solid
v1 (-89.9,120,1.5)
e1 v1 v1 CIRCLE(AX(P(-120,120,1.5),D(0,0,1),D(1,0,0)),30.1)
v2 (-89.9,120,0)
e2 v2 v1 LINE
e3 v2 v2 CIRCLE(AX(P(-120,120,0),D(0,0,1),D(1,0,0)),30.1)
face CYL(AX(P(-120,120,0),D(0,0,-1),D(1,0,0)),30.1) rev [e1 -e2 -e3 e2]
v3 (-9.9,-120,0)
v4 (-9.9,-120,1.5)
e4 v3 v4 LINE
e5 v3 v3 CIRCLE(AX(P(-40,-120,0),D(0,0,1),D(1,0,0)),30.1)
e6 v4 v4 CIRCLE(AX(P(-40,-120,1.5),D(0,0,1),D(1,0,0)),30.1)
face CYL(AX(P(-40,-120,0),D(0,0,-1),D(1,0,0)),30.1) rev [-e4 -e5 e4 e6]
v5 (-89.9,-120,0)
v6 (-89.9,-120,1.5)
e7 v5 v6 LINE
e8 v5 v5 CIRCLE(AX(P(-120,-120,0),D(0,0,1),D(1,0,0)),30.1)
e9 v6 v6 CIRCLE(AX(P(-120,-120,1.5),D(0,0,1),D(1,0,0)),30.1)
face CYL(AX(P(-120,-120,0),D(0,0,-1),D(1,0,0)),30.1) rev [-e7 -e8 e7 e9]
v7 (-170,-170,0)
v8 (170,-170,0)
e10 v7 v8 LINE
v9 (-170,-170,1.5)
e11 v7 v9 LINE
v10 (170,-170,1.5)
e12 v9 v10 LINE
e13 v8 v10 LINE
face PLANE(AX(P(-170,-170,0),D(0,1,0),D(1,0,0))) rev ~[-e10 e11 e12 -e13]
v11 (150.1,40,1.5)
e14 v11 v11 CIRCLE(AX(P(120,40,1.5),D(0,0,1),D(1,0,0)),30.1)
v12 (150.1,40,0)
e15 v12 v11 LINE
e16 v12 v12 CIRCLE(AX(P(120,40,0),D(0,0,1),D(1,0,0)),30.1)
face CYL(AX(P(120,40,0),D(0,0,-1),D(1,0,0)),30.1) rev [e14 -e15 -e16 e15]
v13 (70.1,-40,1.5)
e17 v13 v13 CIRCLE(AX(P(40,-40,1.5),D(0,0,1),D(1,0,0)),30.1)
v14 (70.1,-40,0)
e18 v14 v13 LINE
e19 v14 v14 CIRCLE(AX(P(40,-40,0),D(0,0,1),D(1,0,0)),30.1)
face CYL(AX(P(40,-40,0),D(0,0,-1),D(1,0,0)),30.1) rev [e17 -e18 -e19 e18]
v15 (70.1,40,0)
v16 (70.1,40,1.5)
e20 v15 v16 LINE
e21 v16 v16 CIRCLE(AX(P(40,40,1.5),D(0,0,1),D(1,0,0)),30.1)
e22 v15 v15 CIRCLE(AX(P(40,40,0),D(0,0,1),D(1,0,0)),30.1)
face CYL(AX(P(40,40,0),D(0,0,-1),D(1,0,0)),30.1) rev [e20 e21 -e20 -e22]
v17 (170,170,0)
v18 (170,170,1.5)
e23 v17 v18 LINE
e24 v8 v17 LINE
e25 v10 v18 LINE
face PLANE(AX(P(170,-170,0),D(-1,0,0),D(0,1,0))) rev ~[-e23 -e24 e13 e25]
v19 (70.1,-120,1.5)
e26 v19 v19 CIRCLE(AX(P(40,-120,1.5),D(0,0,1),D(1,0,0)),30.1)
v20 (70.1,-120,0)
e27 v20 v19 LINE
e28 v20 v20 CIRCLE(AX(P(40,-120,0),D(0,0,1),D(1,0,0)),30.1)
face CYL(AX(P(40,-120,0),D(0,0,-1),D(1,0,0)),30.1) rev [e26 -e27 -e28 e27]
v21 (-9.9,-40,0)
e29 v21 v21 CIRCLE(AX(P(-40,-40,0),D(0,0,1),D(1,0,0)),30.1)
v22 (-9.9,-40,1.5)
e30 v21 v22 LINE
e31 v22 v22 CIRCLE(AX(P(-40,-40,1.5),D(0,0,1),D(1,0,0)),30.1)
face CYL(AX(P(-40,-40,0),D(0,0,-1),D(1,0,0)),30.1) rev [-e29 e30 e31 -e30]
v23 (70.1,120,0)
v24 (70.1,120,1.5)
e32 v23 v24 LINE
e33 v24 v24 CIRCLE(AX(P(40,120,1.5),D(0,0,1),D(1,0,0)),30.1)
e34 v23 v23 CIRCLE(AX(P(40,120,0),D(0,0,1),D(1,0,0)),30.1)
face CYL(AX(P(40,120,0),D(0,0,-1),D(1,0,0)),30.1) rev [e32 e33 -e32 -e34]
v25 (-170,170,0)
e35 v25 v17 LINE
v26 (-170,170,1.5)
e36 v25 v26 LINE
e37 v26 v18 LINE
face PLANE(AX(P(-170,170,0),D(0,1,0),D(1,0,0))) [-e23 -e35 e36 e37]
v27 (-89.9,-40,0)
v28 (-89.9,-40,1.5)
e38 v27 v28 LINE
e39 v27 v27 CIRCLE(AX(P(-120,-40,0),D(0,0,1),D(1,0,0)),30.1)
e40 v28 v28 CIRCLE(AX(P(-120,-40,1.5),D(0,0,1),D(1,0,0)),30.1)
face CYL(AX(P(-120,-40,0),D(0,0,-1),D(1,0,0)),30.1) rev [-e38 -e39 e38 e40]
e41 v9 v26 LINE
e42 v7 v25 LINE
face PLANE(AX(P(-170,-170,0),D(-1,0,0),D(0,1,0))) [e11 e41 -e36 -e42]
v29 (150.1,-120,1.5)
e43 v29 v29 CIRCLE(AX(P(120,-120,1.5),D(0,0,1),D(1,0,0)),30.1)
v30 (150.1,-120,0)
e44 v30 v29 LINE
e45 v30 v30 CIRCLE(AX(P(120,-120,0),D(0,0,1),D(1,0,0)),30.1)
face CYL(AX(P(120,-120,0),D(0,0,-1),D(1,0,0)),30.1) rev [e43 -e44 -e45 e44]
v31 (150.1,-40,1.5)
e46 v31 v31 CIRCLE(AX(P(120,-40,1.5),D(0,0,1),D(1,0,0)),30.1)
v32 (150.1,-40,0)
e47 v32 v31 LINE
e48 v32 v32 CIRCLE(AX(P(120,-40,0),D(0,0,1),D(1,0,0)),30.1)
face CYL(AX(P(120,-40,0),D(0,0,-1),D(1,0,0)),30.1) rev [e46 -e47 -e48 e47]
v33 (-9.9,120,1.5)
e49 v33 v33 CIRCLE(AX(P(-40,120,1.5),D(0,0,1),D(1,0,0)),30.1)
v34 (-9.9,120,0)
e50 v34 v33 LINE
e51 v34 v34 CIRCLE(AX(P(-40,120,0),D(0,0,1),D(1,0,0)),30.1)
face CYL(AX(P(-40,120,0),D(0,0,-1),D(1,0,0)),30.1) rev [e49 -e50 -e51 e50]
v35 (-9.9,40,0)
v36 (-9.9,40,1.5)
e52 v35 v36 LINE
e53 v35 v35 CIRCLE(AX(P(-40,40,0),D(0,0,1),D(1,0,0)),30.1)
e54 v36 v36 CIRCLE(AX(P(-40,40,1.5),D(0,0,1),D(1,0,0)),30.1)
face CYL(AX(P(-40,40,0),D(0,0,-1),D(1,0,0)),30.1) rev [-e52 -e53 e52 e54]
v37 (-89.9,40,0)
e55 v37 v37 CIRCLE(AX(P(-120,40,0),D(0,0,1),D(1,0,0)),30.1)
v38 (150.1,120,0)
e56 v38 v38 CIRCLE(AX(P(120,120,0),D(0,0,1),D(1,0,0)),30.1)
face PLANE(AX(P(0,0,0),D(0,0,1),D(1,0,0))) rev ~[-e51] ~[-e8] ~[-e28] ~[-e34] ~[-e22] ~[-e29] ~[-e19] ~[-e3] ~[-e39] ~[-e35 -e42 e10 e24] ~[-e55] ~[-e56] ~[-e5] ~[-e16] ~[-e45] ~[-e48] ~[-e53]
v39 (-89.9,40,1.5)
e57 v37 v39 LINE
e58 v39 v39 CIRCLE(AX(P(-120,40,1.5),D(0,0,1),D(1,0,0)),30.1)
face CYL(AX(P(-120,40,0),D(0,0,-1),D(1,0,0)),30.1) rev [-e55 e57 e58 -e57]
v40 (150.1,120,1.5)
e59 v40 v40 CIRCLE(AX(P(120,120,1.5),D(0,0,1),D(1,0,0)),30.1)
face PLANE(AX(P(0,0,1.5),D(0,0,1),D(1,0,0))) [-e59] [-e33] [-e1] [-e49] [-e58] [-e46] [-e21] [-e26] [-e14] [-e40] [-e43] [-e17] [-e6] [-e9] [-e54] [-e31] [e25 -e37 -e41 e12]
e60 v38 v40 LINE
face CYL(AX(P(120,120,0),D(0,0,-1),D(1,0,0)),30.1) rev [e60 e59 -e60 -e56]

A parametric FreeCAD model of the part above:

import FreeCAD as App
import Part
import Sketcher
from FreeCAD import Vector
Q = App.Units.Quantity

doc = App.newDocument("Part")
body = doc.addObject("PartDesign::Body", "Body")

sketch1 = doc.addObject("Sketcher::SketchObject", "Sketch")
body.addObject(sketch1)
sketch1.AttachmentSupport = (doc.XY_Plane, [""])
sketch1.MapMode = "FlatFace"
sketch1.addGeometry(Part.LineSegment(Vector(-170, 170, 0), Vector(-170, -170, 0)), False)
sketch1.addGeometry(Part.LineSegment(Vector(-170, -170, 0), Vector(170, -170, 0)), False)
sketch1.addGeometry(Part.LineSegment(Vector(170, -170, 0), Vector(170, 170, 0)), False)
sketch1.addGeometry(Part.LineSegment(Vector(170, 170, 0), Vector(-170, 170, 0)), False)
sketch1.addGeometry(Part.Circle(Vector(-120, -120, 0), Vector(0, 0, 1), 30), False)
sketch1.addGeometry(Part.Circle(Vector(-40, -120, 0), Vector(0, 0, 1), 30), False)
sketch1.addGeometry(Part.Circle(Vector(-120, -40, 0), Vector(0, 0, 1), 30), False)
sketch1.addGeometry(Part.Circle(Vector(-40, -40, 0), Vector(0, 0, 1), 30), False)
sketch1.addGeometry(Part.Circle(Vector(40, -120, 0), Vector(0, 0, 1), 30), False)
sketch1.addGeometry(Part.Circle(Vector(120, -120, 0), Vector(0, 0, 1), 30), False)
sketch1.addGeometry(Part.Circle(Vector(40, -40, 0), Vector(0, 0, 1), 30), False)
sketch1.addGeometry(Part.Circle(Vector(120, -40, 0), Vector(0, 0, 1), 30), False)
sketch1.addGeometry(Part.Circle(Vector(-120, 40, 0), Vector(0, 0, 1), 30), False)
sketch1.addGeometry(Part.Circle(Vector(-40, 40, 0), Vector(0, 0, 1), 30), False)
sketch1.addGeometry(Part.Circle(Vector(-120, 120, 0), Vector(0, 0, 1), 30), False)
sketch1.addGeometry(Part.Circle(Vector(-40, 120, 0), Vector(0, 0, 1), 30), False)
sketch1.addGeometry(Part.Circle(Vector(40, 40, 0), Vector(0, 0, 1), 30), False)
sketch1.addGeometry(Part.Circle(Vector(120, 40, 0), Vector(0, 0, 1), 30), False)
sketch1.addGeometry(Part.Circle(Vector(40, 120, 0), Vector(0, 0, 1), 30), False)
sketch1.addGeometry(Part.Circle(Vector(120, 120, 0), Vector(0, 0, 1), 30), False)
sketch1.addConstraint(Sketcher.Constraint("Coincident", 0, 2, 1, 1))
sketch1.addConstraint(Sketcher.Constraint("Coincident", 1, 2, 2, 1))
sketch1.addConstraint(Sketcher.Constraint("Coincident", 2, 2, 3, 1))
sketch1.addConstraint(Sketcher.Constraint("Coincident", 3, 2, 0, 1))
sketch1.addConstraint(Sketcher.Constraint("Vertical", 0))
sketch1.addConstraint(Sketcher.Constraint("Horizontal", 1))
sketch1.addConstraint(Sketcher.Constraint("Vertical", 2))
sketch1.addConstraint(Sketcher.Constraint("Horizontal", 3))
sketch1.addConstraint(Sketcher.Constraint("Equal", 4, 5))
sketch1.addConstraint(Sketcher.Constraint("Equal", 5, 6))
sketch1.addConstraint(Sketcher.Constraint("Equal", 6, 7))
sketch1.addConstraint(Sketcher.Constraint("Equal", 7, 8))
sketch1.addConstraint(Sketcher.Constraint("Equal", 8, 9))
sketch1.addConstraint(Sketcher.Constraint("Equal", 9, 10))
sketch1.addConstraint(Sketcher.Constraint("Equal", 10, 11))
sketch1.addConstraint(Sketcher.Constraint("Equal", 11, 12))
sketch1.addConstraint(Sketcher.Constraint("Equal", 12, 13))
sketch1.addConstraint(Sketcher.Constraint("Equal", 13, 14))
sketch1.addConstraint(Sketcher.Constraint("Equal", 14, 15))
sketch1.addConstraint(Sketcher.Constraint("Equal", 15, 16))
sketch1.addConstraint(Sketcher.Constraint("Equal", 16, 17))
sketch1.addConstraint(Sketcher.Constraint("Equal", 17, 18))
sketch1.addConstraint(Sketcher.Constraint("Equal", 18, 19))
sketch1.addConstraint(Sketcher.Constraint("Symmetric", 11, 3, 12, 3, -1, 1))
sketch1.addConstraint(Sketcher.Constraint("Symmetric", 10, 3, 13, 3, -1, 1))
sketch1.addConstraint(Sketcher.Constraint("Symmetric", 9, 3, 14, 3, -1, 1))
sketch1.addConstraint(Sketcher.Constraint("Symmetric", 8, 3, 15, 3, -1, 1))
sketch1.addConstraint(Sketcher.Constraint("Symmetric", 7, 3, 16, 3, -1, 1))
sketch1.addConstraint(Sketcher.Constraint("Symmetric", 6, 3, 17, 3, -1, 1))
sketch1.addConstraint(Sketcher.Constraint("Symmetric", 5, 3, 18, 3, -1, 1))
sketch1.addConstraint(Sketcher.Constraint("Symmetric", 4, 3, 19, 3, -1, 1))
sketch1.addConstraint(Sketcher.Constraint("Symmetric", 0, 2, 2, 2, -1, 1))
sketch1.addConstraint(Sketcher.Constraint("Symmetric", 5, 3, 8, 3, -2))
sketch1.addConstraint(Sketcher.Constraint("Symmetric", 4, 3, 9, 3, -2))
sketch1.addConstraint(Sketcher.Constraint("Symmetric", 7, 3, 10, 3, -2))
sketch1.addConstraint(Sketcher.Constraint("Symmetric", 6, 3, 11, 3, -2))
sketch1.addConstraint(Sketcher.Constraint("Horizontal", 4, 3, 5, 3))
sketch1.addConstraint(Sketcher.Constraint("Horizontal", 6, 3, 7, 3))
sketch1.addConstraint(Sketcher.Constraint("Vertical", 4, 3, 6, 3))
sketch1.addConstraint(Sketcher.Constraint("Vertical", 5, 3, 7, 3))
sketch1.addConstraint(Sketcher.Constraint("Equal", 3, 0))
sketch1.addConstraint(Sketcher.Constraint("Diameter", 4, Q("60.2 mm")))
sketch1.addConstraint(Sketcher.Constraint("DistanceX", 1, 1, 1, 2, Q("340 mm")))
sketch1.addConstraint(Sketcher.Constraint("DistanceX", 4, 3, -1, 1, Q("120 mm")))
sketch1.addConstraint(Sketcher.Constraint("DistanceY", 4, 3, -1, 1, Q("120 mm")))
sketch1.addConstraint(Sketcher.Constraint("DistanceX", 5, 3, -1, 1, Q("40 mm")))
sketch1.addConstraint(Sketcher.Constraint("DistanceY", 6, 3, -1, 1, Q("40 mm")))
pad1 = doc.addObject("PartDesign::Pad", "Pad")
body.addObject(pad1)
pad1.Profile = sketch1
pad1.Length = 1.5

doc.recompute()
